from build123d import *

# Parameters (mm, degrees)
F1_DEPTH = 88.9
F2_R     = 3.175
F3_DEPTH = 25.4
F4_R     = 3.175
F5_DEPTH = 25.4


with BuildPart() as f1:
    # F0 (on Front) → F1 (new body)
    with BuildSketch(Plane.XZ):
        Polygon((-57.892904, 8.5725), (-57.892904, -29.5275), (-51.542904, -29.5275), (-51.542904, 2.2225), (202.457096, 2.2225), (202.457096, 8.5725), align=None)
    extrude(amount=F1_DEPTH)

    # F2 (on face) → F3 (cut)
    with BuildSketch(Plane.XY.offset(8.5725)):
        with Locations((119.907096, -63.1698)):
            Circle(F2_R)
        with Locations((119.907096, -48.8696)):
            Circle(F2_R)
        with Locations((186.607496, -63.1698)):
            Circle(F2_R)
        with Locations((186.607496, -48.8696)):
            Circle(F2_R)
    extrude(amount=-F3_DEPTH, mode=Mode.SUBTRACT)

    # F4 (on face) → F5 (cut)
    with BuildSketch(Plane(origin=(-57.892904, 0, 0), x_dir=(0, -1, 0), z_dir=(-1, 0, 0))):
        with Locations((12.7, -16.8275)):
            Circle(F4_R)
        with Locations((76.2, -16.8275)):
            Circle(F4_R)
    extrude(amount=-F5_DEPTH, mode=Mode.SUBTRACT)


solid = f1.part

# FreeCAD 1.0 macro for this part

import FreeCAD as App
import Part
import Sketcher
from FreeCAD import Vector
Q = App.Units.Quantity


def add_polygon(sketch, points):
    """Adds a closed chain of lines whose ends are joined by coincident constraints."""
    first, n = sketch.GeometryCount, len(points)
    for a, b in zip(points, points[1:] + points[:1]):
        sketch.addGeometry(Part.LineSegment(App.Vector(*a, 0), App.Vector(*b, 0)), False)
    for i in range(n):
        sketch.addConstraint(Sketcher.Constraint("Coincident", first + i, 2, first + (i + 1) % n, 1))

doc = App.newDocument("Part")
params = doc.addObject("Spreadsheet::Sheet", "Params")
for row, (alias, value) in enumerate([
    ("sketch1_width", "10 in"),
    ("sketch1_height", "1.5 in"),
    ("sketch1_width2", "0.25 in"),
    ("pad1_length", "3.5 in"),
    ("sketch2_diameter", "0.25 in"),
    ("pocket1_length", "1 in"),
    ("sketch3_diameter", "0.25 in"),
    ("pocket2_length", "1 in"),
], start=1):
    params.set(f"A{row}", alias)
    params.set(f"B{row}", "=" + value)
    params.setAlias(f"B{row}", alias)

body = doc.addObject("PartDesign::Body", "Body")

# Sketch on XZ plane
sketch1 = body.newObject("Sketcher::SketchObject", "Sketch")
sketch1.AttachmentSupport = (doc.getObject("XZ_Plane"), [""])
sketch1.MapMode = "FlatFace"
add_polygon(sketch1, [(-57.892904, 8.5725), (-57.892904, -29.5275), (-51.542904, -29.5275), (-51.542904, 2.2225), (202.457096, 2.2225), (202.457096, 8.5725)])  # lines 0-5
sketch1.addConstraint(Sketcher.Constraint("Vertical", 0))
sketch1.addConstraint(Sketcher.Constraint("Horizontal", 1))
sketch1.addConstraint(Sketcher.Constraint("Vertical", 2))
sketch1.addConstraint(Sketcher.Constraint("Horizontal", 3))
sketch1.addConstraint(Sketcher.Constraint("Vertical", 4))
sketch1.addConstraint(Sketcher.Constraint("Horizontal", 5))
sketch1.addConstraint(Sketcher.Constraint("Equal", 1, 4))
sketch1.addConstraint(Sketcher.Constraint("DistanceX", 3, 1, 3, 2, Q("10 in")))
sketch1.addConstraint(Sketcher.Constraint("DistanceY", 0, 2, 0, 1, Q("1.5 in")))
sketch1.addConstraint(Sketcher.Constraint("DistanceX", 1, 1, 1, 2, Q("0.25 in")))
sketch1.addConstraint(Sketcher.Constraint("DistanceY", 0, 2, -1, 1, Q("1.1625 in")))
sketch1.addConstraint(Sketcher.Constraint("DistanceX", 0, 2, -1, 1, Q("57.892904 mm")))
sketch1.setExpression("Constraints[13]", "Params.sketch1_width")
sketch1.setExpression("Constraints[14]", "Params.sketch1_height")
sketch1.setExpression("Constraints[15]", "Params.sketch1_width2")
pad1 = body.newObject("PartDesign::Pad", "Pad")
pad1.Profile = sketch1
pad1.setExpression("Length", "Params.pad1_length")

# Sketch on XY plane
sketch2 = body.newObject("Sketcher::SketchObject", "Sketch001")
sketch2.AttachmentSupport = (doc.getObject("XY_Plane"), [""])
sketch2.MapMode = "FlatFace"
sketch2.AttachmentOffset = App.Placement(Vector(0, 0, 0.3375 * 25.4), App.Rotation())
sketch2.addGeometry(Part.Circle(Vector(119.907096, -63.1698, 0), Vector(0, 0, 1), 3.175), False)
sketch2.addGeometry(Part.Circle(Vector(119.907096, -48.8696, 0), Vector(0, 0, 1), 3.175), False)
sketch2.addGeometry(Part.Circle(Vector(186.607496, -63.1698, 0), Vector(0, 0, 1), 3.175), False)
sketch2.addGeometry(Part.Circle(Vector(186.607496, -48.8696, 0), Vector(0, 0, 1), 3.175), False)
sketch2.addConstraint(Sketcher.Constraint("Equal", 0, 1))
sketch2.addConstraint(Sketcher.Constraint("Equal", 1, 2))
sketch2.addConstraint(Sketcher.Constraint("Equal", 2, 3))
sketch2.addConstraint(Sketcher.Constraint("Horizontal", 0, 3, 2, 3))
sketch2.addConstraint(Sketcher.Constraint("Horizontal", 1, 3, 3, 3))
sketch2.addConstraint(Sketcher.Constraint("Vertical", 0, 3, 1, 3))
sketch2.addConstraint(Sketcher.Constraint("Vertical", 2, 3, 3, 3))
sketch2.addConstraint(Sketcher.Constraint("Diameter", 0, Q("0.25 in")))
sketch2.addConstraint(Sketcher.Constraint("DistanceY", 0, 3, -1, 1, Q("2.487 in")))
sketch2.addConstraint(Sketcher.Constraint("DistanceY", 1, 3, -1, 1, Q("1.924 in")))
sketch2.addConstraint(Sketcher.Constraint("DistanceX", 0, 3, 2, 3, Q("2.626 in")))
sketch2.addConstraint(Sketcher.Constraint("DistanceX", -1, 1, 0, 3, Q("119.907096 mm")))
sketch2.setExpression("Constraints[7]", "Params.sketch2_diameter")
pocket1 = body.newObject("PartDesign::Pocket", "Pocket")
pocket1.Profile = sketch2
pocket1.setExpression("Length", "Params.pocket1_length")

# Sketch on YZ plane
sketch3 = body.newObject("Sketcher::SketchObject", "Sketch002")
sketch3.AttachmentSupport = (doc.getObject("YZ_Plane"), [""])
sketch3.MapMode = "FlatFace"
sketch3.AttachmentOffset = App.Placement(Vector(0, 0, -57.892904), App.Rotation())
sketch3.addGeometry(Part.Circle(Vector(-12.7, -16.8275, 0), Vector(0, 0, 1), 3.175), False)
sketch3.addGeometry(Part.Circle(Vector(-76.2, -16.8275, 0), Vector(0, 0, 1), 3.175), False)
sketch3.addConstraint(Sketcher.Constraint("Equal", 0, 1))
sketch3.addConstraint(Sketcher.Constraint("Horizontal", 0, 3, 1, 3))
sketch3.addConstraint(Sketcher.Constraint("Diameter", 0, Q("0.25 in")))
sketch3.addConstraint(Sketcher.Constraint("DistanceX", 1, 3, -1, 1, Q("3 in")))
sketch3.addConstraint(Sketcher.Constraint("DistanceX", 0, 3, -1, 1, Q("0.5 in")))
sketch3.addConstraint(Sketcher.Constraint("DistanceY", 0, 3, -1, 1, Q("0.6625 in")))
sketch3.setExpression("Constraints[2]", "Params.sketch3_diameter")
pocket2 = body.newObject("PartDesign::Pocket", "Pocket001")
pocket2.Profile = sketch3
pocket2.setExpression("Length", "Params.pocket2_length")
pocket2.Reversed = True

doc.recompute()
